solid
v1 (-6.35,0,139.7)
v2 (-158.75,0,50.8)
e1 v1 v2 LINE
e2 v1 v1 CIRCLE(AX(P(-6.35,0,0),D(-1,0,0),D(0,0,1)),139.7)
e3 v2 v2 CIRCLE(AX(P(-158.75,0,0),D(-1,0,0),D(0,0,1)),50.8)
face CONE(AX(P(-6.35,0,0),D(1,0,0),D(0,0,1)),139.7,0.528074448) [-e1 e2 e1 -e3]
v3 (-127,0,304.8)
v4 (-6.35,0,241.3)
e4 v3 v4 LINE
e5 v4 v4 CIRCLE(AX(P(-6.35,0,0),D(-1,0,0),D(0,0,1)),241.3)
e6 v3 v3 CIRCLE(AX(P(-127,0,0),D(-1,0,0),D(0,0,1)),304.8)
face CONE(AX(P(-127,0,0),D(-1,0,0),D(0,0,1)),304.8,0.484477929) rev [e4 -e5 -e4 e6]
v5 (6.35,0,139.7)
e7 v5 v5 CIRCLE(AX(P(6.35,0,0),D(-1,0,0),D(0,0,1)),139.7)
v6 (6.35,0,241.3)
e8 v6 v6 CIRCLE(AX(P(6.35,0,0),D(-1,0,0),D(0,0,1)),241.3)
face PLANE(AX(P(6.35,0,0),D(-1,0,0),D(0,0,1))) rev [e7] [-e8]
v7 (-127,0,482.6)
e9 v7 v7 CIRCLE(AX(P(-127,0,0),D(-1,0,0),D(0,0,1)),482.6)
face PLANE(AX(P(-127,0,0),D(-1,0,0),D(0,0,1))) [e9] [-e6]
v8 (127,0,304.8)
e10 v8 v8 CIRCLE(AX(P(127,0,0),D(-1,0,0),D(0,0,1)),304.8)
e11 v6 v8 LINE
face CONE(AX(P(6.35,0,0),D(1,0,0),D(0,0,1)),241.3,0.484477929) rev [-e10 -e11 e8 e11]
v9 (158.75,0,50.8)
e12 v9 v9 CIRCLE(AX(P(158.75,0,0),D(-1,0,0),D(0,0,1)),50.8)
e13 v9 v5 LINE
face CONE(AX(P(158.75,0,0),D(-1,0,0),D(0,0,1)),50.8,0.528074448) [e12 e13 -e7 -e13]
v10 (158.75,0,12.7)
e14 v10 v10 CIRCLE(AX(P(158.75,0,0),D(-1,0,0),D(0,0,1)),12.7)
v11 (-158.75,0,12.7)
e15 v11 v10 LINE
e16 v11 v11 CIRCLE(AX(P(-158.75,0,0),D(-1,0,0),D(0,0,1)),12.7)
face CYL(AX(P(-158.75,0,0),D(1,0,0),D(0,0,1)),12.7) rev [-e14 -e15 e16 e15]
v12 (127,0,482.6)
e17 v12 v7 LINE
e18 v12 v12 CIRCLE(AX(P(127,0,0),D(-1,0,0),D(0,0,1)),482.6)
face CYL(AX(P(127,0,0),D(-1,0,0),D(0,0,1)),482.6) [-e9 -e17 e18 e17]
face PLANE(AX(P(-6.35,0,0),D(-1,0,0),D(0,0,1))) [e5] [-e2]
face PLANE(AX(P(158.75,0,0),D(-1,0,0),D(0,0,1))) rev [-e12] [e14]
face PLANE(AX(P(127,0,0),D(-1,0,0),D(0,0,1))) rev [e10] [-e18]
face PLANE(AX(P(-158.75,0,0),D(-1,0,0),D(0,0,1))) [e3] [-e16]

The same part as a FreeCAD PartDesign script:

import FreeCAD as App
import Part
import Sketcher

V = App.Vector
Q = App.Units.Quantity


def add_polygon(sketch, points):
    """Adds a closed chain of lines whose ends are joined by coincident constraints."""
    first, n = sketch.GeometryCount, len(points)
    for a, b in zip(points, points[1:] + points[:1]):
        sketch.addGeometry(Part.LineSegment(App.Vector(*a, 0), App.Vector(*b, 0)), False)
    for i in range(n):
        sketch.addConstraint(Sketcher.Constraint("Coincident", first + i, 2, first + (i + 1) % n, 1))

doc = App.newDocument("Part")
body = doc.addObject("PartDesign::Body", "Body")

sketch1 = doc.addObject("Sketcher::SketchObject", "Sketch")
body.addObject(sketch1)
sketch1.AttachmentSupport = (doc.XZ_Plane, [""])
sketch1.MapMode = "FlatFace"
add_polygon(sketch1, [(159, 13), (159, 51), (6, 140), (6, 241), (127, 305), (127, 483), (-127, 483), (-127, 305), (-6, 241), (-6, 140), (-159, 51), (-159, 13)])
sketch1.addConstraint([
    Sketcher.Constraint("Vertical", 0),
    Sketcher.Constraint("Vertical", 2),
    Sketcher.Constraint("Vertical", 4),
    Sketcher.Constraint("Horizontal", 5),
    Sketcher.Constraint("Vertical", 6),
    Sketcher.Constraint("Vertical", 8),
    Sketcher.Constraint("Vertical", 10),
    Sketcher.Constraint("Horizontal", 11),
    Sketcher.Constraint("Symmetric", 3, 2, 6, 2, -2),
    Sketcher.Constraint("Symmetric", 2, 2, 7, 2, -2),
    Sketcher.Constraint("Symmetric", 0, 2, 9, 2, -2),
    Sketcher.Constraint("Horizontal", 1, 2, 8, 2),
    Sketcher.Constraint("DistanceX", 5, 2, 5, 1, Q("10 in")),
    Sketcher.Constraint("DistanceY", 2, 1, 2, 2, Q("4 in")),
    Sketcher.Constraint("DistanceY", 4, 1, 4, 2, Q("7 in")),
    Sketcher.Constraint("DistanceX", 11, 1, 11, 2, Q("12.5 in")),
    Sketcher.Constraint("DistanceY", 0, 1, 0, 2, Q("1.5 in")),
    Sketcher.Constraint("DistanceY", -1, 1, 0, 2, Q("2 in")),
    Sketcher.Constraint("DistanceY", -1, 1, 3, 2, Q("12 in")),
    Sketcher.Constraint("DistanceX", 1, 2, 0, 2, Q("6 in")),
    Sketcher.Constraint("DistanceY", 10, 2, 8, 2, Q("5 in")),
])
revolution = doc.addObject("PartDesign::Revolution", "Revolution")
body.addObject(revolution)
revolution.Profile = sketch1
revolution.ReferenceAxis = (sketch1, ["H_Axis"])
revolution.Angle = 360

doc.recompute()
